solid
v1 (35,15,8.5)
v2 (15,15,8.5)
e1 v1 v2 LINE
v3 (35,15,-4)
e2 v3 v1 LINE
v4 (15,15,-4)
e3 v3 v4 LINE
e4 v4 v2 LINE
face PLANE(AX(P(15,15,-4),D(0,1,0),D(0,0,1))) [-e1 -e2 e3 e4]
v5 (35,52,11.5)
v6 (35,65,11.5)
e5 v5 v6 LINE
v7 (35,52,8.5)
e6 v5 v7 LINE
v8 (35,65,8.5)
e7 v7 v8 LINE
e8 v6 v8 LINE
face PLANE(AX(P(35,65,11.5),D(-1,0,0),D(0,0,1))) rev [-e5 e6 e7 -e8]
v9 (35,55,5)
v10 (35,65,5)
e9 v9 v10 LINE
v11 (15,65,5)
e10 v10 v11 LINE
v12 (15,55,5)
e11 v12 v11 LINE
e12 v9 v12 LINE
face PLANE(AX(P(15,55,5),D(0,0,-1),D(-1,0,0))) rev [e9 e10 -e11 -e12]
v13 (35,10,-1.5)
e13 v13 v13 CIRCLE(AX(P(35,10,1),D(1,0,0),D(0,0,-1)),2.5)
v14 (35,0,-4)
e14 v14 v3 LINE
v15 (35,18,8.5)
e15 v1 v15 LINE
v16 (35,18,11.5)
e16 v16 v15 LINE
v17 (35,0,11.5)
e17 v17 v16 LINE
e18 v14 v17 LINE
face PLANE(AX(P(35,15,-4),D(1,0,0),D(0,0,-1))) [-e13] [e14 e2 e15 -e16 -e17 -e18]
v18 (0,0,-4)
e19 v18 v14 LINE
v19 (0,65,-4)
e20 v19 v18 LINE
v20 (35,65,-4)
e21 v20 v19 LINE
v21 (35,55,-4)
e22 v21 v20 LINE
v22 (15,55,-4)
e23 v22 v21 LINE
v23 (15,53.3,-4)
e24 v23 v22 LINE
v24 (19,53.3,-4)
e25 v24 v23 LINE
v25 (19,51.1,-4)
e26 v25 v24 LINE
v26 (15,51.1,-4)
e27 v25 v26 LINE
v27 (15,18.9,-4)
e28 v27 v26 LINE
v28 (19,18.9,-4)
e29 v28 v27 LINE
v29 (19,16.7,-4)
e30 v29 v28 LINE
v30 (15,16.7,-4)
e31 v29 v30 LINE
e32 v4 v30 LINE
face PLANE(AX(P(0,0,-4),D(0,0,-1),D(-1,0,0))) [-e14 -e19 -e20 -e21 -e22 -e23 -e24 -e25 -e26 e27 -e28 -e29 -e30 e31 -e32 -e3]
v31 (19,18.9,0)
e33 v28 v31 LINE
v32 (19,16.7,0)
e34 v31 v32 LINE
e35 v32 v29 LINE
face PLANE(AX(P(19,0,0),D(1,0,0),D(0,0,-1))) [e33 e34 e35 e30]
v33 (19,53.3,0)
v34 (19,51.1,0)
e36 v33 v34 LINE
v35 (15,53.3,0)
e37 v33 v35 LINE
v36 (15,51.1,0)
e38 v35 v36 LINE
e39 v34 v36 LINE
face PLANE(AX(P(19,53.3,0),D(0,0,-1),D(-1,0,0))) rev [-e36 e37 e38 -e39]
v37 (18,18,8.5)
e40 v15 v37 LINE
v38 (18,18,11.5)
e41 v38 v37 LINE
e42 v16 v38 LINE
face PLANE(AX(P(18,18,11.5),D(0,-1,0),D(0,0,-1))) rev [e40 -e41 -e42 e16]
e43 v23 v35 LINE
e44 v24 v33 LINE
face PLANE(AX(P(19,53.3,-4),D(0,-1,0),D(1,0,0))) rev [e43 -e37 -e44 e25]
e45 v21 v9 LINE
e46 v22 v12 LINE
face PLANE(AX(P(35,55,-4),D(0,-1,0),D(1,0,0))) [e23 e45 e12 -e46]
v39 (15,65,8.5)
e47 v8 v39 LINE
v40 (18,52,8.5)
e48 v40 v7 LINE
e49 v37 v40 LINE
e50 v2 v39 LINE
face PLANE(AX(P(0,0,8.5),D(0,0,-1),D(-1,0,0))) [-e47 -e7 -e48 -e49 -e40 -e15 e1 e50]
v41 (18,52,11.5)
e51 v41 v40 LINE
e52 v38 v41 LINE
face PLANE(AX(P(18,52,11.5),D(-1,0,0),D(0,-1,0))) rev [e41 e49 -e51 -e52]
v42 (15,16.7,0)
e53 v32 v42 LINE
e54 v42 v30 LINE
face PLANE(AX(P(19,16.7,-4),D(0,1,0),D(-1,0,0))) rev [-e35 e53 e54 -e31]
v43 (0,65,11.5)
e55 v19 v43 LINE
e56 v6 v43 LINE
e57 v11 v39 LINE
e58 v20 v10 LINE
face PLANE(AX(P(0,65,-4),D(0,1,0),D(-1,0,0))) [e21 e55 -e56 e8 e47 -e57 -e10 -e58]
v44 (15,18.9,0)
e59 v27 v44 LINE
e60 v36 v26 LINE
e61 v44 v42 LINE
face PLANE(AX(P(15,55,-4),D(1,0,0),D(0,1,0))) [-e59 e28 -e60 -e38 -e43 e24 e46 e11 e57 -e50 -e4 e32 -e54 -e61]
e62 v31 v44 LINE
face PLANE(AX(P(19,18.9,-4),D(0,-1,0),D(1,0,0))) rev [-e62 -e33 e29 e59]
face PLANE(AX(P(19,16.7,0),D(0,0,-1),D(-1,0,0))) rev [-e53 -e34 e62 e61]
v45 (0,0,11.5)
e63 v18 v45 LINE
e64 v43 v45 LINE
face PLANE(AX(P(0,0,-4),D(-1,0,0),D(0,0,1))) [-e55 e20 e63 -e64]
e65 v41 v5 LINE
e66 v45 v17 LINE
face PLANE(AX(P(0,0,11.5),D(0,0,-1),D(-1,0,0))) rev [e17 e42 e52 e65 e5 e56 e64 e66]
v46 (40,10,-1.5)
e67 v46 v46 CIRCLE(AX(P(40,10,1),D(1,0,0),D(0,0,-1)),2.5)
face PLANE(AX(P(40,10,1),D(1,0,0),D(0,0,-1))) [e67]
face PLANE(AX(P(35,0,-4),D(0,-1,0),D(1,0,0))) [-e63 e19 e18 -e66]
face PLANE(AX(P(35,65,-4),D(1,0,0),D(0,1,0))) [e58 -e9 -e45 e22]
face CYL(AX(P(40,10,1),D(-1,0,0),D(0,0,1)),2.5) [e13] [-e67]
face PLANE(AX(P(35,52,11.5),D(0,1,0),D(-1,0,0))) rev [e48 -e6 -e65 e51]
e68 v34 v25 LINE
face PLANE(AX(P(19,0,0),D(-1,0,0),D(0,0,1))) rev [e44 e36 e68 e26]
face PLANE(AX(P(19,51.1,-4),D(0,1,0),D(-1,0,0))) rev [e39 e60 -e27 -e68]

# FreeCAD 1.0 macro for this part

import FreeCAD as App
import Part
import Sketcher
from FreeCAD import Vector
Q = App.Units.Quantity

doc = App.newDocument("Part")
body = doc.addObject("PartDesign::Body", "Body")

sketch1 = body.newObject("Sketcher::SketchObject", "Sketch")
sketch1.AttachmentSupport = (doc.getObject("XY_Plane"), [""])
sketch1.MapMode = "FlatFace"
sketch1.addGeometry([
    Part.LineSegment(Vector(0, 65, 0), Vector(0, 0, 0)),
    Part.LineSegment(Vector(0, 0, 0), Vector(35, 0, 0)),
    Part.LineSegment(Vector(35, 0, 0), Vector(35, 15, 0)),
    Part.LineSegment(Vector(35, 15, 0), Vector(15, 15, 0)),
    Part.LineSegment(Vector(15, 15, 0), Vector(15, 55, 0)),
    Part.LineSegment(Vector(15, 55, 0), Vector(35, 55, 0)),
    Part.LineSegment(Vector(35, 55, 0), Vector(35, 65, 0)),
    Part.LineSegment(Vector(35, 65, 0), Vector(0, 65, 0)),
], False)
sketch1.addConstraint([
    Sketcher.Constraint("Coincident", 0, 2, 1, 1),
    Sketcher.Constraint("Coincident", 1, 2, 2, 1),
    Sketcher.Constraint("Coincident", 2, 2, 3, 1),
    Sketcher.Constraint("Coincident", 3, 2, 4, 1),
    Sketcher.Constraint("Coincident", 4, 2, 5, 1),
    Sketcher.Constraint("Coincident", 5, 2, 6, 1),
    Sketcher.Constraint("Coincident", 6, 2, 7, 1),
    Sketcher.Constraint("Coincident", 7, 2, 0, 1),
    Sketcher.Constraint("Vertical", 0),
    Sketcher.Constraint("Horizontal", 1),
    Sketcher.Constraint("Vertical", 2),
    Sketcher.Constraint("Horizontal", 3),
    Sketcher.Constraint("Vertical", 4),
    Sketcher.Constraint("Horizontal", 5),
    Sketcher.Constraint("Vertical", 6),
    Sketcher.Constraint("Horizontal", 7),
    Sketcher.Constraint("Coincident", 0, 2, -1, 1),
    Sketcher.Constraint("Vertical", 2, 2, 5, 2),
    Sketcher.Constraint("DistanceX", 1, 1, 1, 2, Q("35 mm")),
    Sketcher.Constraint("DistanceX", 3, 2, 3, 1, Q("20 mm")),
    Sketcher.Constraint("DistanceY", 0, 2, 0, 1, Q("65 mm")),
    Sketcher.Constraint("DistanceY", 2, 1, 2, 2, Q("15 mm")),
    Sketcher.Constraint("DistanceY", 4, 1, 4, 2, Q("40 mm")),
])
pad1 = body.newObject("PartDesign::Pad", "Pad")
pad1.Profile = sketch1
pad1.Type = "TwoLengths"
pad1.Length = 8.5
pad1.Length2 = 4

sketch2 = body.newObject("Sketcher::SketchObject", "Sketch001")
sketch2.AttachmentSupport = (doc.getObject("XZ_Plane"), [""])
sketch2.MapMode = "FlatFace"
sketch2.AttachmentOffset = App.Placement(Vector(0, 0, -65), App.Rotation())
sketch2.addGeometry([
    Part.LineSegment(Vector(15, 5, 0), Vector(15, 8.5, 0)),
    Part.LineSegment(Vector(15, 8.5, 0), Vector(55, 8.5, 0)),
    Part.LineSegment(Vector(55, 8.5, 0), Vector(55, 5, 0)),
    Part.LineSegment(Vector(55, 5, 0), Vector(15, 5, 0)),
], False)
sketch2.addConstraint([
    Sketcher.Constraint("Coincident", 0, 2, 1, 1),
    Sketcher.Constraint("Coincident", 1, 2, 2, 1),
    Sketcher.Constraint("Coincident", 2, 2, 3, 1),
    Sketcher.Constraint("Coincident", 3, 2, 0, 1),
    Sketcher.Constraint("Vertical", 0),
    Sketcher.Constraint("Horizontal", 1),
    Sketcher.Constraint("Vertical", 2),
    Sketcher.Constraint("Horizontal", 3),
    Sketcher.Constraint("DistanceX", 1, 1, 1, 2, Q("40 mm")),
    Sketcher.Constraint("DistanceY", 0, 1, 0, 2, Q("3.5 mm")),
    Sketcher.Constraint("DistanceX", -1, 1, 0, 2, Q("15 mm")),
    Sketcher.Constraint("DistanceY", -1, 1, 2, 2, Q("5 mm")),
])
pocket1 = body.newObject("PartDesign::Pocket", "Pocket")
pocket1.Profile = sketch2
pocket1.Length = 10
pocket1.Reversed = True

sketch3 = body.newObject("Sketcher::SketchObject", "Sketch002")
sketch3.AttachmentSupport = (doc.getObject("XY_Plane"), [""])
sketch3.MapMode = "FlatFace"
sketch3.AttachmentOffset = App.Placement(Vector(0, 0, 8.5), App.Rotation())
sketch3.addGeometry([
    Part.LineSegment(Vector(0, 0, 0), Vector(35, 0, 0)),
    Part.LineSegment(Vector(35, 0, 0), Vector(35, 18, 0)),
    Part.LineSegment(Vector(35, 18, 0), Vector(18, 18, 0)),
    Part.LineSegment(Vector(18, 18, 0), Vector(18, 52, 0)),
    Part.LineSegment(Vector(18, 52, 0), Vector(35, 52, 0)),
    Part.LineSegment(Vector(35, 52, 0), Vector(35, 65, 0)),
    Part.LineSegment(Vector(35, 65, 0), Vector(0, 65, 0)),
    Part.LineSegment(Vector(0, 65, 0), Vector(0, 0, 0)),
], False)
sketch3.addConstraint([
    Sketcher.Constraint("Coincident", 0, 2, 1, 1),
    Sketcher.Constraint("Coincident", 1, 2, 2, 1),
    Sketcher.Constraint("Coincident", 2, 2, 3, 1),
    Sketcher.Constraint("Coincident", 3, 2, 4, 1),
    Sketcher.Constraint("Coincident", 4, 2, 5, 1),
    Sketcher.Constraint("Coincident", 5, 2, 6, 1),
    Sketcher.Constraint("Coincident", 6, 2, 7, 1),
    Sketcher.Constraint("Coincident", 7, 2, 0, 1),
    Sketcher.Constraint("Horizontal", 0),
    Sketcher.Constraint("Vertical", 1),
    Sketcher.Constraint("Horizontal", 2),
    Sketcher.Constraint("Vertical", 3),
    Sketcher.Constraint("Horizontal", 4),
    Sketcher.Constraint("Vertical", 5),
    Sketcher.Constraint("Horizontal", 6),
    Sketcher.Constraint("Vertical", 7),
    Sketcher.Constraint("Coincident", 7, 2, -1, 1),
    Sketcher.Constraint("Vertical", 1, 2, 4, 2),
    Sketcher.Constraint("DistanceX", 0, 1, 0, 2, Q("35 mm")),
    Sketcher.Constraint("DistanceX", 2, 2, 2, 1, Q("17 mm")),
    Sketcher.Constraint("DistanceY", 1, 1, 1, 2, Q("18 mm")),
    Sketcher.Constraint("DistanceY", 3, 1, 3, 2, Q("34 mm")),
    Sketcher.Constraint("DistanceY", 5, 1, 5, 2, Q("13 mm")),
])
pad2 = body.newObject("PartDesign::Pad", "Pad001")
pad2.Profile = sketch3
pad2.Length = 3

sketch4 = body.newObject("Sketcher::SketchObject", "Sketch003")
sketch4.AttachmentSupport = (doc.getObject("YZ_Plane"), [""])
sketch4.MapMode = "FlatFace"
sketch4.AttachmentOffset = App.Placement(Vector(0, 0, 35), App.Rotation())
sketch4.addGeometry(Part.Circle(Vector(10, 1, 0), Vector(0, 0, 1), 2.5), False)
sketch4.addConstraint([
    Sketcher.Constraint("Diameter", 0, Q("5 mm")),
    Sketcher.Constraint("DistanceX", -1, 1, 0, 3, Q("10 mm")),
    Sketcher.Constraint("DistanceY", -1, 1, 0, 3, Q("1 mm")),
])
pad3 = body.newObject("PartDesign::Pad", "Pad002")
pad3.Profile = sketch4
pad3.Length = 5

sketch5 = body.newObject("Sketcher::SketchObject", "Sketch004")
sketch5.AttachmentSupport = (doc.getObject("YZ_Plane"), [""])
sketch5.MapMode = "FlatFace"
sketch5.AttachmentOffset = App.Placement(Vector(0, 0, 15), App.Rotation())
sketch5.addGeometry([
    Part.LineSegment(Vector(53.3, 0, 0), Vector(51.1, 0, 0)),
    Part.LineSegment(Vector(51.1, 0, 0), Vector(51.1, -4, 0)),
    Part.LineSegment(Vector(51.1, -4, 0), Vector(53.3, -4, 0)),
    Part.LineSegment(Vector(53.3, -4, 0), Vector(53.3, 0, 0)),
    Part.LineSegment(Vector(18.9, 0, 0), Vector(16.7, 0, 0)),
    Part.LineSegment(Vector(16.7, 0, 0), Vector(16.7, -4, 0)),
    Part.LineSegment(Vector(16.7, -4, 0), Vector(18.9, -4, 0)),
    Part.LineSegment(Vector(18.9, -4, 0), Vector(18.9, 0, 0)),
], False)
sketch5.addConstraint([
    Sketcher.Constraint("Coincident", 0, 2, 1, 1),
    Sketcher.Constraint("Coincident", 1, 2, 2, 1),
    Sketcher.Constraint("Coincident", 2, 2, 3, 1),
    Sketcher.Constraint("Coincident", 3, 2, 0, 1),
    Sketcher.Constraint("Coincident", 4, 2, 5, 1),
    Sketcher.Constraint("Coincident", 5, 2, 6, 1),
    Sketcher.Constraint("Coincident", 6, 2, 7, 1),
    Sketcher.Constraint("Coincident", 7, 2, 4, 1),
    Sketcher.Constraint("Horizontal", 0),
    Sketcher.Constraint("Vertical", 1),
    Sketcher.Constraint("Horizontal", 2),
    Sketcher.Constraint("Vertical", 3),
    Sketcher.Constraint("Horizontal", 4),
    Sketcher.Constraint("Vertical", 5),
    Sketcher.Constraint("Horizontal", 6),
    Sketcher.Constraint("Vertical", 7),
    Sketcher.Constraint("PointOnObject", 0, 2, -1),
    Sketcher.Constraint("PointOnObject", 4, 2, -1),
    Sketcher.Constraint("Horizontal", 2, 2, 5, 2),
    Sketcher.Constraint("Equal", 2, 4),
    Sketcher.Constraint("DistanceY", 1, 2, 1, 1, Q("4 mm")),
    Sketcher.Constraint("DistanceX", 0, 2, 0, 1, Q("2.2 mm")),
    Sketcher.Constraint("DistanceX", -1, 1, 0, 2, Q("51.1 mm")),
    Sketcher.Constraint("DistanceX", -1, 1, 4, 2, Q("16.7 mm")),
])
pad4 = body.newObject("PartDesign::Pad", "Pad003")
pad4.Profile = sketch5
pad4.Length = 4

doc.recompute()
